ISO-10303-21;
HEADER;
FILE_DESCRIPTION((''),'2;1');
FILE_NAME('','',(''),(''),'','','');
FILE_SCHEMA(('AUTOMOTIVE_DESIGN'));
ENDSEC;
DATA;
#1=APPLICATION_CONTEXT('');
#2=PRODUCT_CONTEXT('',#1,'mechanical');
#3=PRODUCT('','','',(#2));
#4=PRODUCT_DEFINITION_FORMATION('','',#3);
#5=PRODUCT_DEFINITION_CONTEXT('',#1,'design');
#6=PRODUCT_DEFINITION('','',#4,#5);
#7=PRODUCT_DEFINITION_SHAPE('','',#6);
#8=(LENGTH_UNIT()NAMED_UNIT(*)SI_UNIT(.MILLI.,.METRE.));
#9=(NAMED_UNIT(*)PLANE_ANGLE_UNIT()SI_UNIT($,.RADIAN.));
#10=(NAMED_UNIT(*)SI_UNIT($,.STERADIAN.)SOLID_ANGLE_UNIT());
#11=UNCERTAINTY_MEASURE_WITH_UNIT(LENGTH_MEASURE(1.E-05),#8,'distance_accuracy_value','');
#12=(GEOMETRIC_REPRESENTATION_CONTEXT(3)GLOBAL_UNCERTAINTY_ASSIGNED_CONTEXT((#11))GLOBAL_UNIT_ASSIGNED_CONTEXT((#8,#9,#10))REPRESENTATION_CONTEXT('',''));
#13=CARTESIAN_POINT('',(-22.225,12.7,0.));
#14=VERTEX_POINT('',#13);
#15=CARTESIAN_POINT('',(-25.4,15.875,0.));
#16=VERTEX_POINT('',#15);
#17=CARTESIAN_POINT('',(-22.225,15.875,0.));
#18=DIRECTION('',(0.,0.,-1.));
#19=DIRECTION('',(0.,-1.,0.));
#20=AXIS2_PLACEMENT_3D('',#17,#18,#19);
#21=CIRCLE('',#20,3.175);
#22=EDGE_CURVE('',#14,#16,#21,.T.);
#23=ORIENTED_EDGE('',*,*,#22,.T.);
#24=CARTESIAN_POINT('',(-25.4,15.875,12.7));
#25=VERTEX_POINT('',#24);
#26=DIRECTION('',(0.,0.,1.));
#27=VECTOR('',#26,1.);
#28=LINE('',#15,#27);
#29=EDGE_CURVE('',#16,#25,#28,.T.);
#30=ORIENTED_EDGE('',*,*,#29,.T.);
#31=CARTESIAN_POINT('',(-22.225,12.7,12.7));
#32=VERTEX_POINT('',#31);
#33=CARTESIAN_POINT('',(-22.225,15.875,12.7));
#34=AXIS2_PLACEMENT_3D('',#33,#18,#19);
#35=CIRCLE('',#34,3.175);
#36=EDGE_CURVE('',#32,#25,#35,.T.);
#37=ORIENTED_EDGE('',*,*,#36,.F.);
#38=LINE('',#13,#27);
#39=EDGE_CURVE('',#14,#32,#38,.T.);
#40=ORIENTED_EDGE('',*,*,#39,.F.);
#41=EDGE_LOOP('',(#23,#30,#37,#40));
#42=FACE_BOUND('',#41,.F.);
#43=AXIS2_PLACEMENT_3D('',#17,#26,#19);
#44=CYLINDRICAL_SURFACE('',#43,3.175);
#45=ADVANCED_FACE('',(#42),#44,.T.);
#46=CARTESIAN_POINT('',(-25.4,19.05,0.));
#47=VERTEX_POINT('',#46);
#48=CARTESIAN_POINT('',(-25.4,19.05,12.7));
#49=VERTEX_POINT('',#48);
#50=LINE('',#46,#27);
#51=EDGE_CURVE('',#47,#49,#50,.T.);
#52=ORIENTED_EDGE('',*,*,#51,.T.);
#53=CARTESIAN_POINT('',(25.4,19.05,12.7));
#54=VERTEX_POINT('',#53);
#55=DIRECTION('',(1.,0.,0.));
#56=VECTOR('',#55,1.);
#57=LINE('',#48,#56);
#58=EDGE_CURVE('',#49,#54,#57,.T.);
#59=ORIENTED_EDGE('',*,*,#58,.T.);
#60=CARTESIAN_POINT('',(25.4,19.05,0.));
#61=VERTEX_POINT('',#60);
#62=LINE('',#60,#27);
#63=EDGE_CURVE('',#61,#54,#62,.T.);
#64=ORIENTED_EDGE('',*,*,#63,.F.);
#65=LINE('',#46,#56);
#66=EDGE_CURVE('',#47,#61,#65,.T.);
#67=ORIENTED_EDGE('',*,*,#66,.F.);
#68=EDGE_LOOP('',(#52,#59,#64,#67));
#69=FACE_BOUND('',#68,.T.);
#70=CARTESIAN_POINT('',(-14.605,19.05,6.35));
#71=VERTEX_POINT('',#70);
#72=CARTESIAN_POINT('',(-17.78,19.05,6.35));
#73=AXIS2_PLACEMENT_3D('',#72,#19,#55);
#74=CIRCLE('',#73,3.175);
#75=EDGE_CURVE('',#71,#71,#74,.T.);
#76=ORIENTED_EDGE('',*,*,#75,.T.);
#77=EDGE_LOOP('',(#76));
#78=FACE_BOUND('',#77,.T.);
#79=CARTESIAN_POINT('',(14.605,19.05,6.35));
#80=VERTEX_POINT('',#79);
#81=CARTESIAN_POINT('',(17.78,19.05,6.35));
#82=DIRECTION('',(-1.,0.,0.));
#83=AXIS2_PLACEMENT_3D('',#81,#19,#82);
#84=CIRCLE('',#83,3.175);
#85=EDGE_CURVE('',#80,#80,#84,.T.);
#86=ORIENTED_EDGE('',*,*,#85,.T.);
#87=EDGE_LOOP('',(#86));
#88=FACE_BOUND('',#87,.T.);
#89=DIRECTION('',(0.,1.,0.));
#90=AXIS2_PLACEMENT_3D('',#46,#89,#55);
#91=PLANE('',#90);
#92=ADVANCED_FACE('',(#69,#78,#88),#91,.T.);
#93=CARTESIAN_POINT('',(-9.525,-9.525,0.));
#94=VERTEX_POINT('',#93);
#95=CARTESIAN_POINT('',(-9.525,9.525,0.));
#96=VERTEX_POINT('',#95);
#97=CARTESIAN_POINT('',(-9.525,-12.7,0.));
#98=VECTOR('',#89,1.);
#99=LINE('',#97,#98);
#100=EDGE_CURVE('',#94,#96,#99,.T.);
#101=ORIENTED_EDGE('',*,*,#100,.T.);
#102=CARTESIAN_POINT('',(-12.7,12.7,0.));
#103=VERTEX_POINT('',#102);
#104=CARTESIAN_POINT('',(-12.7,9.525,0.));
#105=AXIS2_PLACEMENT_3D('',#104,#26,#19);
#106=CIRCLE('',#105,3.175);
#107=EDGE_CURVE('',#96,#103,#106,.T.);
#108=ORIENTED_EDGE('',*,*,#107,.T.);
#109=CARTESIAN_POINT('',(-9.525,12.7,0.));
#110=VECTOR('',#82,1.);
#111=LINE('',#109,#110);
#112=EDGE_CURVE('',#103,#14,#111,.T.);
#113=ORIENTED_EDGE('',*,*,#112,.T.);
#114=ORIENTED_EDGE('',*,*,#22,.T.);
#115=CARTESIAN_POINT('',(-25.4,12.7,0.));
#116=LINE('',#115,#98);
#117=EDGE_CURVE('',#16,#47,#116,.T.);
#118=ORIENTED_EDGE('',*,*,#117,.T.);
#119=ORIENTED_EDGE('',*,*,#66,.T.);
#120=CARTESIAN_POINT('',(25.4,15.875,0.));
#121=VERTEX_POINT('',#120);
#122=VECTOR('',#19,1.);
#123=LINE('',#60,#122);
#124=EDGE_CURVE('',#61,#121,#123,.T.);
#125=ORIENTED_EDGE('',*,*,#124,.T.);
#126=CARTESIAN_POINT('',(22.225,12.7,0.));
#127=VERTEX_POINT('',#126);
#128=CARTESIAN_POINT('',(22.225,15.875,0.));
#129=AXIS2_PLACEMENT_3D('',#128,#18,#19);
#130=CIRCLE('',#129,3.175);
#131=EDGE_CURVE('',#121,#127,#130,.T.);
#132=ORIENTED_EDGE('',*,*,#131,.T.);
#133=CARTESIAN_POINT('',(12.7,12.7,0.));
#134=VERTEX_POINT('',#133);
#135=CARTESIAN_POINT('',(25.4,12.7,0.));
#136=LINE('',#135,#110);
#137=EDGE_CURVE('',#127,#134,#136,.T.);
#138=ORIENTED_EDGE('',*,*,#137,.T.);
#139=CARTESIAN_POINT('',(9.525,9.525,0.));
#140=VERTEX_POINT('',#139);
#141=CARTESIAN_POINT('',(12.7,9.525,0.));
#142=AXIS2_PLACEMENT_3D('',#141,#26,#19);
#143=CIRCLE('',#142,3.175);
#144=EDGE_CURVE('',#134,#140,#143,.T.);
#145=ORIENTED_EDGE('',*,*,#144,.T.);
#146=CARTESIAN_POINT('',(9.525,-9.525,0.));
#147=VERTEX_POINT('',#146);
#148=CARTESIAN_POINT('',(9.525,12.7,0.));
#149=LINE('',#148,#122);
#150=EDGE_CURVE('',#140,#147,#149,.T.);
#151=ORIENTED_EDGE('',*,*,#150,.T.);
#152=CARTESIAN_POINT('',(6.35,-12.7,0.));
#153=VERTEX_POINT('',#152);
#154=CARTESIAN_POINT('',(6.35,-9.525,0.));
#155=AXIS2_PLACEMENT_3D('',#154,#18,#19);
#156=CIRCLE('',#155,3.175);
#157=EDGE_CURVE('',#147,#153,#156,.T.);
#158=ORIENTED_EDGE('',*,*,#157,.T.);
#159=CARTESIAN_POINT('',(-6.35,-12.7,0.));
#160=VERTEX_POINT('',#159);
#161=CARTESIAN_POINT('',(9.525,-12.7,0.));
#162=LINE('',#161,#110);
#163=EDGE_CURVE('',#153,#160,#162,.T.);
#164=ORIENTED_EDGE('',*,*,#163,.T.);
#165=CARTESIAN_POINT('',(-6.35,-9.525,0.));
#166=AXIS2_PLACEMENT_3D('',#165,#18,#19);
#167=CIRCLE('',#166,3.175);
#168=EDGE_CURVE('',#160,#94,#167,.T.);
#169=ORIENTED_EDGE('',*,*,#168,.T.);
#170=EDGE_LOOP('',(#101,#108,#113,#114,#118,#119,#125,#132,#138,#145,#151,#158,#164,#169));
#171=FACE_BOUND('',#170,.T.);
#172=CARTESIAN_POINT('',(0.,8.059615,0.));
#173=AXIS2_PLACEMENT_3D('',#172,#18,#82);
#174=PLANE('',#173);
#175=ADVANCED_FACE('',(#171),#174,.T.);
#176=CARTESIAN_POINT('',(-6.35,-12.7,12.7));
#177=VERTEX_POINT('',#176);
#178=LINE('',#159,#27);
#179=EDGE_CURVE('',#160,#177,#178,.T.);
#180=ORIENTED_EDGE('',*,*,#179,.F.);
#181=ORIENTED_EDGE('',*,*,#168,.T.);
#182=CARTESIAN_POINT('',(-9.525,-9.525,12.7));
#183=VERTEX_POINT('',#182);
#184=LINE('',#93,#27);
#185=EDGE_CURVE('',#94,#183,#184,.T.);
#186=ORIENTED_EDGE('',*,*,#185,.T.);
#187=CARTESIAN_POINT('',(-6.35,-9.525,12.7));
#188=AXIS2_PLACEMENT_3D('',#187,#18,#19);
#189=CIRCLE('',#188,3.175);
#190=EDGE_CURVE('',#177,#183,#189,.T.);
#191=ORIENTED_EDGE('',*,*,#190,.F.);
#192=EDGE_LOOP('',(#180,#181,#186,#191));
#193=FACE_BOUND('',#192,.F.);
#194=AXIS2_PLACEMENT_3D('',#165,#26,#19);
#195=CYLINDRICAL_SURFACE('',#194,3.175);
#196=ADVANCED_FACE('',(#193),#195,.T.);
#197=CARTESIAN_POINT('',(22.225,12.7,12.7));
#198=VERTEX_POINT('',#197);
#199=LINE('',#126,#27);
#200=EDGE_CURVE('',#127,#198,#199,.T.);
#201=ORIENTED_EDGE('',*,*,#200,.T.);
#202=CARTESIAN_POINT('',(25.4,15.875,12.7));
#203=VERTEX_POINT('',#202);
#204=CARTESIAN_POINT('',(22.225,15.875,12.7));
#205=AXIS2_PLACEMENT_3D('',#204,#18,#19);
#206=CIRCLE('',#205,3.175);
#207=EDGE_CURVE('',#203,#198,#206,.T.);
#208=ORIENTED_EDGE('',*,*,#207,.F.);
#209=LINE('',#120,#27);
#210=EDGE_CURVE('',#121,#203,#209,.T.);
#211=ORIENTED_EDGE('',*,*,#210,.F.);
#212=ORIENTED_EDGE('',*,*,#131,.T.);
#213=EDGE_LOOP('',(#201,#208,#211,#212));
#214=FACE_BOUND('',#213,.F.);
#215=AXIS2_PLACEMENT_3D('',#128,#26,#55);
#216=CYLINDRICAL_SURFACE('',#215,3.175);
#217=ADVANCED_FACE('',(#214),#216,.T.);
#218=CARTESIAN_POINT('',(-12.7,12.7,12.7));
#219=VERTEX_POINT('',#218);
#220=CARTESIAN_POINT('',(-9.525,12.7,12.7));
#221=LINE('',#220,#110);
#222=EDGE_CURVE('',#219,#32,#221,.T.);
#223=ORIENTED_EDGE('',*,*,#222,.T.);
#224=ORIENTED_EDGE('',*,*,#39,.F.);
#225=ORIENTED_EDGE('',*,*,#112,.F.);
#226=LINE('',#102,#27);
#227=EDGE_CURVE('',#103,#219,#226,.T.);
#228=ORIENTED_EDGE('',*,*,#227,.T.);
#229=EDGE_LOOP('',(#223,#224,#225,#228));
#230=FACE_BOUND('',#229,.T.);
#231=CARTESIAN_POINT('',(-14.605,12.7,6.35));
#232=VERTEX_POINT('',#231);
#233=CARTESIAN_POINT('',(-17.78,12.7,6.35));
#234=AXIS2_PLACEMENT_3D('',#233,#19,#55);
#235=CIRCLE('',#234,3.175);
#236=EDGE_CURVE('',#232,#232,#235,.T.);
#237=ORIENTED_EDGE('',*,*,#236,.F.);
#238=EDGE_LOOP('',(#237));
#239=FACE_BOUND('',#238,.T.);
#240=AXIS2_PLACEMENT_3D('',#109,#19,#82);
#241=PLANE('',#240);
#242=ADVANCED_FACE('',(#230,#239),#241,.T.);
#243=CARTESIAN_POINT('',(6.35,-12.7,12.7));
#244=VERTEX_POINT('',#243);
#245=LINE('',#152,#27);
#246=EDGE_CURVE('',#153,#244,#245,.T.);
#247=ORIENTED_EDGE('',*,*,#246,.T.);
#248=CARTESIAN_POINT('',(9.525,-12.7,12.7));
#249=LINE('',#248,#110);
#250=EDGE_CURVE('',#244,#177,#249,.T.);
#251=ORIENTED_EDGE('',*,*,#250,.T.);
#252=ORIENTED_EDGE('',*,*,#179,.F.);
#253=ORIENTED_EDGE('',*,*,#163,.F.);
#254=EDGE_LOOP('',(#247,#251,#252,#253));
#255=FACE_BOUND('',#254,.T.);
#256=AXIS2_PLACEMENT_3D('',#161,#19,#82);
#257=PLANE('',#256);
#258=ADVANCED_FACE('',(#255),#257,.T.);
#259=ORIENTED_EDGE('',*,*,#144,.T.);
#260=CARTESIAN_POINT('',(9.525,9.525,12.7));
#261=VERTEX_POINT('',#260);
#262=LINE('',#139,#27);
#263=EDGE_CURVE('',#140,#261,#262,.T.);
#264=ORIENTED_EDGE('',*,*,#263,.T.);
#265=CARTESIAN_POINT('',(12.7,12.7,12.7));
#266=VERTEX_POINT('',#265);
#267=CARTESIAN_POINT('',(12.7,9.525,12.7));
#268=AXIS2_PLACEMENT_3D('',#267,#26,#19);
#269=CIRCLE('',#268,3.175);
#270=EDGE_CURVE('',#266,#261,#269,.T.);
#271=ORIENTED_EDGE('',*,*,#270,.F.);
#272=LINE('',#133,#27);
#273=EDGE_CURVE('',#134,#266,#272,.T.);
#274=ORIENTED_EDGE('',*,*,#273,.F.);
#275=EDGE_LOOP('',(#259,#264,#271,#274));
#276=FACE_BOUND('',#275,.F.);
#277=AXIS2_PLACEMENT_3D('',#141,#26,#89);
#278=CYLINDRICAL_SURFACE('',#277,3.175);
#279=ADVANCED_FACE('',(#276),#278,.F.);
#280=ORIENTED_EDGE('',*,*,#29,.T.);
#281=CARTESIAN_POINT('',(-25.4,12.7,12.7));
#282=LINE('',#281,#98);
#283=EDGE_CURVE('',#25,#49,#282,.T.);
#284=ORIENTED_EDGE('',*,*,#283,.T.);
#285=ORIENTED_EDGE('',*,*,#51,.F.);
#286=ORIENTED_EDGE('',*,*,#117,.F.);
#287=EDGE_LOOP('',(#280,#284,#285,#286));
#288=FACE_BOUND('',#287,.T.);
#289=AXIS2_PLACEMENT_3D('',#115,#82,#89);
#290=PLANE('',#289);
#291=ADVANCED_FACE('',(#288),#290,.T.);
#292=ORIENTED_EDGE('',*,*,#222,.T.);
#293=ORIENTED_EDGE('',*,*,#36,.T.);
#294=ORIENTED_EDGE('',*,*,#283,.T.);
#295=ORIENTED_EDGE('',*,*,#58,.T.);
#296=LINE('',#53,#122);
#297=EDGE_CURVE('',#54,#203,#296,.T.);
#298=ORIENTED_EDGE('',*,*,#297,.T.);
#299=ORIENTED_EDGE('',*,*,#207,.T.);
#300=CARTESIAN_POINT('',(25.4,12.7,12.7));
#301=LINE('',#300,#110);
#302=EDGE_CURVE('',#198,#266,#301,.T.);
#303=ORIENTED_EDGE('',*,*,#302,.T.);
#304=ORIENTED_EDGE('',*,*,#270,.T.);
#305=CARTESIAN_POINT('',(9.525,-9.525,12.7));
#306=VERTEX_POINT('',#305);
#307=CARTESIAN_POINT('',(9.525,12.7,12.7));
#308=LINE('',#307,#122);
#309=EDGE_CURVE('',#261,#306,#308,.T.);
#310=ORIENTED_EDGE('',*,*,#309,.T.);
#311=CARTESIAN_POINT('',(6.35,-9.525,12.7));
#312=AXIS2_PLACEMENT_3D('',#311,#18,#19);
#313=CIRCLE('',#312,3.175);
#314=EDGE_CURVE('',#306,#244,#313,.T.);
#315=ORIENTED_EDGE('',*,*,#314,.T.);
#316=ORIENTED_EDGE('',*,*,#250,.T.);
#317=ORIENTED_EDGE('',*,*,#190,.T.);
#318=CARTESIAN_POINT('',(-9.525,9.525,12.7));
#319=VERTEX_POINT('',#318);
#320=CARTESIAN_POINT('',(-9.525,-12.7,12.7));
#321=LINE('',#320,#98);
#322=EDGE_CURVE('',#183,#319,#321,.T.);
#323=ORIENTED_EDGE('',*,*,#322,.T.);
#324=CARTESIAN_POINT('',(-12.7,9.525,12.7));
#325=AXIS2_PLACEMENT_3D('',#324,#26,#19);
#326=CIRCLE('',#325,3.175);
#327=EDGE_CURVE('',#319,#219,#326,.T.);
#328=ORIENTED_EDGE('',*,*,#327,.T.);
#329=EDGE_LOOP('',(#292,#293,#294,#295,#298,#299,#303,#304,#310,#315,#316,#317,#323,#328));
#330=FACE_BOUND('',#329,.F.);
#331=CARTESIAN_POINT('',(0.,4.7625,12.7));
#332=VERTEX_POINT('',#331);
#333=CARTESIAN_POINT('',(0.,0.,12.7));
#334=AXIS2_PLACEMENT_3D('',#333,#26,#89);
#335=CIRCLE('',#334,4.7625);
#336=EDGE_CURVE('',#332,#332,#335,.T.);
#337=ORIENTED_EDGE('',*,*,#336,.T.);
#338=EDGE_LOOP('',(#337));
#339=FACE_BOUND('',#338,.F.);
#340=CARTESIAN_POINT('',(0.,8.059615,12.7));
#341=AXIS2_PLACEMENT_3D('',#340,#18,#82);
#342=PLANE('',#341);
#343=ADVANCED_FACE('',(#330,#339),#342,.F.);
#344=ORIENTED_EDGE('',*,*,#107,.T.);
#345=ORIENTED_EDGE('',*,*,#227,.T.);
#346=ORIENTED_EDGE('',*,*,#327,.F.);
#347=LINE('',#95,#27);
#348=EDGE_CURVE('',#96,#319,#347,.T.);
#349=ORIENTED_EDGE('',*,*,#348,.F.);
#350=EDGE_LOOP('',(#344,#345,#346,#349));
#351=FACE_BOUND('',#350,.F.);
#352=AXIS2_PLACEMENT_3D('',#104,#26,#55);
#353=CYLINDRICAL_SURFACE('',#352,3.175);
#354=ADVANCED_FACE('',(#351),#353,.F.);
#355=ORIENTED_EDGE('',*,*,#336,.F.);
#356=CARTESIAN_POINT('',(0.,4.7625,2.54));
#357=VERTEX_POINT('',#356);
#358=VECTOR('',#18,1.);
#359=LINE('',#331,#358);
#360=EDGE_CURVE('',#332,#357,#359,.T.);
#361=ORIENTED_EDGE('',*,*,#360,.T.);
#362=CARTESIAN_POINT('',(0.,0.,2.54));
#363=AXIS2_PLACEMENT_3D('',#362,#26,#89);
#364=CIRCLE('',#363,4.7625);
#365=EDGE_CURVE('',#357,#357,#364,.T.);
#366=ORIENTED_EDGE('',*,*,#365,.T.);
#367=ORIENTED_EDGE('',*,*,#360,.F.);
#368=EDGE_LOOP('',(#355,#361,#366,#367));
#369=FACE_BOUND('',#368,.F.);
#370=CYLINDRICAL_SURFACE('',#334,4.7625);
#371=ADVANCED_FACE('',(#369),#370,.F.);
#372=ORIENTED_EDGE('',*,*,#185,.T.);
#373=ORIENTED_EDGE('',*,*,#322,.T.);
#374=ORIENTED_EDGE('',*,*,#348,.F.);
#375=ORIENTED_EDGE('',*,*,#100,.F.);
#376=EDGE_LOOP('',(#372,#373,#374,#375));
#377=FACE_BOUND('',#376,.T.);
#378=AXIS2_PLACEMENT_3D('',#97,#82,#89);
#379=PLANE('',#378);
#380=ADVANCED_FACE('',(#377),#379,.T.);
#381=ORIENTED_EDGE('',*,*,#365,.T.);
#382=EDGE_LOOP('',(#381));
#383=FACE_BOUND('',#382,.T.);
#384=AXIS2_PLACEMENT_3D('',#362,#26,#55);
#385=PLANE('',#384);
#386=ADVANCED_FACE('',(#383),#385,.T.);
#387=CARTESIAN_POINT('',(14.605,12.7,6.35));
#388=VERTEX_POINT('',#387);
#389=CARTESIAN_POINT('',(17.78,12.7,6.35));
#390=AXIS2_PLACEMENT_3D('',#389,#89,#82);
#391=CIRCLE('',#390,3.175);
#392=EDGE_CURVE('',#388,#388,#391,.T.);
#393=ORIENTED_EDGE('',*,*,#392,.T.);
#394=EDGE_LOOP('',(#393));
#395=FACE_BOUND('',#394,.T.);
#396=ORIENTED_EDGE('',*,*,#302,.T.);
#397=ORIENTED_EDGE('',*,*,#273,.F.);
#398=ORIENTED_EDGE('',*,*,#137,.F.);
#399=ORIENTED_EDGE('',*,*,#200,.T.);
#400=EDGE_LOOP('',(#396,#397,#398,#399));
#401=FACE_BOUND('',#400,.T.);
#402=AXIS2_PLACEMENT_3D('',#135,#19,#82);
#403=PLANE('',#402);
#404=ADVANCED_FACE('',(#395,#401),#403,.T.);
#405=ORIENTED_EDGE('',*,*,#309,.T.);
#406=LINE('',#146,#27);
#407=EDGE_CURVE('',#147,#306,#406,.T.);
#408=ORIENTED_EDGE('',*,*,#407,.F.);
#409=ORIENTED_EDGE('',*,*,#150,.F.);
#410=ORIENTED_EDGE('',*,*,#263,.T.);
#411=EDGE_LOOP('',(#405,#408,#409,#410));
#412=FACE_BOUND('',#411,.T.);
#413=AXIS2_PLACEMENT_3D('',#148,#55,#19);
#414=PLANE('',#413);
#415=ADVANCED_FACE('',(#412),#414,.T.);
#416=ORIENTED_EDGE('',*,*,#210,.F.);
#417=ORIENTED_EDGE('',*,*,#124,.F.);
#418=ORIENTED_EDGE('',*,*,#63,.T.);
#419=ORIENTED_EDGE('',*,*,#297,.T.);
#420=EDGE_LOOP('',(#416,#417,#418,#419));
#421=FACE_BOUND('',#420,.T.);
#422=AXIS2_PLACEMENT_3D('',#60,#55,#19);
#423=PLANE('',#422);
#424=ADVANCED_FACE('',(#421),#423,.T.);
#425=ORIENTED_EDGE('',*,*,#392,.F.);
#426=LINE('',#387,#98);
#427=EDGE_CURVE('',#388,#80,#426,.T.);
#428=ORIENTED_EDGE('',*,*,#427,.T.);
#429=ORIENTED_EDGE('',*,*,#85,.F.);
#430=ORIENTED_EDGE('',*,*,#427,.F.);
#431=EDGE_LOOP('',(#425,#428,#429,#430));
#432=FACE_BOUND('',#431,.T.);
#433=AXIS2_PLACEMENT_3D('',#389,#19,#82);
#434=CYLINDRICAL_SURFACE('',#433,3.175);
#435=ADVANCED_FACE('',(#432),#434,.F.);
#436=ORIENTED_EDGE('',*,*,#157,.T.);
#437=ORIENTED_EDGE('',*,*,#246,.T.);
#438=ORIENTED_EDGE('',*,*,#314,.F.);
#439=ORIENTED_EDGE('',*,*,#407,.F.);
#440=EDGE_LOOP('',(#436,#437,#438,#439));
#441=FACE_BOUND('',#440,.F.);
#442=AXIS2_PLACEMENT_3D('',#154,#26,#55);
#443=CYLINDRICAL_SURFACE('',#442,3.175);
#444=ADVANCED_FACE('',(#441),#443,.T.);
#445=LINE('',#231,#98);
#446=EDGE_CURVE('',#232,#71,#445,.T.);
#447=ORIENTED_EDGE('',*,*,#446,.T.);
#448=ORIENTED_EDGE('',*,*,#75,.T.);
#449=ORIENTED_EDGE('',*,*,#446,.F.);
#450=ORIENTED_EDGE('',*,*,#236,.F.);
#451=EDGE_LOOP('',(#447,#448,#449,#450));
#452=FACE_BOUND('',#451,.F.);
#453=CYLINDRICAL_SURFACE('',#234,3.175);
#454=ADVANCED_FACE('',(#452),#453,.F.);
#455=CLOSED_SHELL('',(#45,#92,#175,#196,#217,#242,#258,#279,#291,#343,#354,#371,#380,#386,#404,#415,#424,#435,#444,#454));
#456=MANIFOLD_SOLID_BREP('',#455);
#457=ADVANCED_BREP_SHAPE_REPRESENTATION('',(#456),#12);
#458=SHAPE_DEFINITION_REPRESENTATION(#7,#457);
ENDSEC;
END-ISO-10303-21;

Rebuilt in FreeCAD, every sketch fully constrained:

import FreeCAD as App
import Part
import Sketcher

V = App.Vector
Q = App.Units.Quantity


def edges_at(feature, points):
    """Names of the edges that pass closest to the given points."""
    edges = feature.Shape.Edges
    near = lambda p: min(range(len(edges)), key=lambda i: edges[i].distToShape(Part.Vertex(*p))[0])
    return sorted({f"Edge{near(p) + 1}" for p in points})

doc = App.newDocument("Part")
body = doc.addObject("PartDesign::Body", "Body")

# Sketch on XY plane
sketch1 = doc.addObject("Sketcher::SketchObject", "Sketch")
body.addObject(sketch1)
sketch1.AttachmentSupport = (doc.XY_Plane, [""])
sketch1.MapMode = "FlatFace"
sketch1.addGeometry(Part.LineSegment(V(25.4, 19.05, 0), V(-25.4, 19.05, 0)), False)
sketch1.addGeometry(Part.LineSegment(V(-25.4, 19.05, 0), V(-25.4, 12.7, 0)), False)
sketch1.addGeometry(Part.LineSegment(V(-25.4, 12.7, 0), V(-9.525, 12.7, 0)), False)
sketch1.addGeometry(Part.LineSegment(V(-9.525, 12.7, 0), V(-9.525, -12.7, 0)), False)
sketch1.addGeometry(Part.LineSegment(V(-9.525, -12.7, 0), V(9.525, -12.7, 0)), False)
sketch1.addGeometry(Part.LineSegment(V(9.525, -12.7, 0), V(9.525, 12.7, 0)), False)
sketch1.addGeometry(Part.LineSegment(V(9.525, 12.7, 0), V(25.4, 12.7, 0)), False)
sketch1.addGeometry(Part.LineSegment(V(25.4, 12.7, 0), V(25.4, 19.05, 0)), False)
sketch1.addConstraint(Sketcher.Constraint("Coincident", 0, 2, 1, 1))
sketch1.addConstraint(Sketcher.Constraint("Coincident", 1, 2, 2, 1))
sketch1.addConstraint(Sketcher.Constraint("Coincident", 2, 2, 3, 1))
sketch1.addConstraint(Sketcher.Constraint("Coincident", 3, 2, 4, 1))
sketch1.addConstraint(Sketcher.Constraint("Coincident", 4, 2, 5, 1))
sketch1.addConstraint(Sketcher.Constraint("Coincident", 5, 2, 6, 1))
sketch1.addConstraint(Sketcher.Constraint("Coincident", 6, 2, 7, 1))
sketch1.addConstraint(Sketcher.Constraint("Coincident", 7, 2, 0, 1))
sketch1.addConstraint(Sketcher.Constraint("Horizontal", 0))
sketch1.addConstraint(Sketcher.Constraint("Vertical", 1))
sketch1.addConstraint(Sketcher.Constraint("Horizontal", 2))
sketch1.addConstraint(Sketcher.Constraint("Vertical", 3))
sketch1.addConstraint(Sketcher.Constraint("Horizontal", 4))
sketch1.addConstraint(Sketcher.Constraint("Vertical", 5))
sketch1.addConstraint(Sketcher.Constraint("Horizontal", 6))
sketch1.addConstraint(Sketcher.Constraint("Vertical", 7))
sketch1.addConstraint(Sketcher.Constraint("Symmetric", 2, 2, 4, 2, -1, 1))
sketch1.addConstraint(Sketcher.Constraint("Symmetric", 1, 2, 6, 2, -2))
sketch1.addConstraint(Sketcher.Constraint("DistanceY", 3, 2, 3, 1, Q("1 in")))
sketch1.addConstraint(Sketcher.Constraint("DistanceX", 0, 2, -1, 1, Q("1 in")))
sketch1.addConstraint(Sketcher.Constraint("DistanceX", 2, 2, -1, 1, Q("0.375 in")))
sketch1.addConstraint(Sketcher.Constraint("DistanceY", 1, 2, 1, 1, Q("0.25 in")))
pad1 = doc.addObject("PartDesign::Pad", "Pad")
body.addObject(pad1)
pad1.Profile = sketch1
pad1.Length = Q("0.5 in")
doc.recompute()

fillet = doc.addObject("PartDesign::Fillet", "Fillet")
body.addObject(fillet)
fillet.Base = (pad1, edges_at(pad1, [
    (9.525, 12.7, 6.35),
    (9.525, -12.7, 6.35),
    (-9.525, -12.7, 6.35),
    (25.4, 12.7, 6.35),
    (-9.525, 12.7, 6.35),
    (-25.4, 12.7, 6.35),
]))
fillet.Radius = Q("0.125 in")

# Sketch on XY plane
sketch2 = doc.addObject("Sketcher::SketchObject", "Sketch001")
body.addObject(sketch2)
sketch2.AttachmentSupport = (doc.XY_Plane, [""])
sketch2.MapMode = "FlatFace"
sketch2.AttachmentOffset = App.Placement(V(0, 0, 0.5 * 25.4), App.Rotation())
sketch2.addGeometry(Part.Circle(V(0, 0, 0), V(0, 0, 1), 4.7625), False)
sketch2.addConstraint(Sketcher.Constraint("Coincident", 0, 3, -1, 1))
sketch2.addConstraint(Sketcher.Constraint("Diameter", 0, Q("0.375 in")))
pocket1 = doc.addObject("PartDesign::Pocket", "Pocket")
body.addObject(pocket1)
pocket1.Profile = sketch2
pocket1.Length = Q("0.4 in")

# Sketch on XZ plane
sketch3 = doc.addObject("Sketcher::SketchObject", "Sketch002")
body.addObject(sketch3)
sketch3.AttachmentSupport = (doc.XZ_Plane, [""])
sketch3.MapMode = "FlatFace"
sketch3.AttachmentOffset = App.Placement(V(0, 0, -0.5 * 25.4), App.Rotation())
sketch3.addGeometry(Part.Circle(V(-17.78, 6.35, 0), V(0, 0, 1), 3.175), False)
sketch3.addConstraint(Sketcher.Constraint("Diameter", 0, Q("0.25 in")))
sketch3.addConstraint(Sketcher.Constraint("DistanceX", 0, 3, -1, 1, Q("0.7 in")))
sketch3.addConstraint(Sketcher.Constraint("DistanceY", -1, 1, 0, 3, Q("0.25 in")))
pocket2 = doc.addObject("PartDesign::Pocket", "Pocket001")
body.addObject(pocket2)
pocket2.Profile = sketch3
pocket2.Length = Q("1 in")
doc.recompute()

mirrored = doc.addObject("PartDesign::Mirrored", "Mirrored")
body.addObject(mirrored)
mirrored.Originals = [pocket2]
mirrored.MirrorPlane = (doc.YZ_Plane, [""])
body.Tip = mirrored

doc.recompute()
